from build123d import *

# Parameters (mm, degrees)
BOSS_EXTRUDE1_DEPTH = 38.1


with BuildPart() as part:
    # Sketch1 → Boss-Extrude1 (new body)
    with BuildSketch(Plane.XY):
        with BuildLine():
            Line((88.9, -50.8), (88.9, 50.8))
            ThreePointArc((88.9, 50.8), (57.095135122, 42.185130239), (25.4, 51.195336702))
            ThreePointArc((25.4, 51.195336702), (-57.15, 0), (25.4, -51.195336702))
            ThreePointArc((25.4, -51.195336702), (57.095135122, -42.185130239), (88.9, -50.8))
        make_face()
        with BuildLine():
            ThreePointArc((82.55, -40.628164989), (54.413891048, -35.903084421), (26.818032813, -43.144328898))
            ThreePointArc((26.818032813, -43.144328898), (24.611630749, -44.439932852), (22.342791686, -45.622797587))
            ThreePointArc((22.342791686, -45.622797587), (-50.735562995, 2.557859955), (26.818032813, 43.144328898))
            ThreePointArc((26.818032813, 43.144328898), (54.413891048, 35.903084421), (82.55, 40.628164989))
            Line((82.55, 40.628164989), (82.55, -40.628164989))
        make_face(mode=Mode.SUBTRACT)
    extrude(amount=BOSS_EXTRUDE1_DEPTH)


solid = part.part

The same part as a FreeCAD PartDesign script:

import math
import FreeCAD as App
import Part
import Sketcher

V = App.Vector
Q = App.Units.Quantity

doc = App.newDocument("Part")
params = doc.addObject("Spreadsheet::Sheet", "Params")
for row, (alias, value) in enumerate([
    ("sketch1_radius", "2 in"),
    ("sketch1_height", "4 in"),
    ("sketch1_radius2", "2.25 in"),
    ("pad1_length", "1.5 in"),
], start=1):
    params.set(f"A{row}", alias)
    params.set(f"B{row}", "=" + value)
    params.setAlias(f"B{row}", alias)

body = doc.addObject("PartDesign::Body", "Body")

# Sketch on XY plane
sketch1 = body.newObject("Sketcher::SketchObject", "Sketch")
sketch1.AttachmentSupport = (doc.getObject("XY_Plane"), [""])
sketch1.MapMode = "FlatFace"
sketch1.addGeometry([
    Part.LineSegment(V(89, -51, 0), V(89, 51, 0)),  # 0
    Part.ArcOfCircle(Part.Circle(V(57, 104, 0), V(0, 0, 1), 62), math.radians(-121), math.radians(-59)),  # 1
    Part.ArcOfCircle(Part.Circle(V(0, 0, 0), V(0, 0, 1), 57), math.radians(64), math.radians(296)),  # 2
    Part.ArcOfCircle(Part.Circle(V(57, -104, 0), V(0, 0, 1), 62), math.radians(59), math.radians(121)),  # 3
    Part.LineSegment(V(83, 41, 0), V(83, -41, 0)),  # 4
    Part.ArcOfCircle(Part.Circle(V(57, -104, 0), V(0, 0, 1), 68), math.radians(68), math.radians(117)),  # 5
    Part.ArcOfCircle(Part.Circle(V(0, 0, 0), V(0, 0, 1), 51), math.radians(-63.91), math.radians(-58.14)),  # 6
    Part.ArcOfCircle(Part.Circle(V(0, 0, 0), V(0, 0, 1), 51), math.radians(58), math.radians(296)),  # 7
    Part.ArcOfCircle(Part.Circle(V(57, 104, 0), V(0, 0, 1), 68), math.radians(-117), math.radians(-68)),  # 8
], False)
sketch1.addConstraint([
    Sketcher.Constraint("Coincident", 0, 2, 1, 2),
    Sketcher.Constraint("Coincident", 1, 1, 2, 1),
    Sketcher.Constraint("Coincident", 2, 2, 3, 2),
    Sketcher.Constraint("Coincident", 3, 1, 0, 1),
    Sketcher.Constraint("Coincident", 4, 2, 5, 1),
    Sketcher.Constraint("Coincident", 5, 2, 6, 2),
    Sketcher.Constraint("Tangent", 6, 1, 7, 2),
    Sketcher.Constraint("Coincident", 7, 1, 8, 1),
    Sketcher.Constraint("Coincident", 8, 2, 4, 1),
    Sketcher.Constraint("Vertical", 0),
    Sketcher.Constraint("Vertical", 4),
    Sketcher.Constraint("Coincident", 2, 3, -1, 1),
    Sketcher.Constraint("Coincident", 6, 3, -1, 1),
    Sketcher.Constraint("Coincident", 5, 3, 3, 3),
    Sketcher.Constraint("Coincident", 8, 3, 1, 3),
    Sketcher.Constraint("Equal", 1, 3),
    Sketcher.Constraint("Equal", 6, 7),
    Sketcher.Constraint("Equal", 5, 8),
    Sketcher.Constraint("Symmetric", 1, 3, 3, 3, -1),
    Sketcher.Constraint("Radius", 6, Q("2 in")),
    Sketcher.Constraint("DistanceY", 0, 1, 0, 2, Q("4 in")),
    Sketcher.Constraint("Radius", 2, Q("2.25 in")),
    Sketcher.Constraint("DistanceX", -1, 1, 1, 1, Q("1 in")),
    Sketcher.Constraint("DistanceX", -1, 1, 0, 2, Q("3.5 in")),
    Sketcher.Constraint("DistanceX", -1, 1, 4, 2, Q("3.25 in")),
    Sketcher.Constraint("Radius", 1, 61.602251),
    Sketcher.Constraint("Radius", 5, 67.952251),
    Sketcher.Constraint("DistanceX", -1, 1, 6, 1, 22.342792),
])
sketch1.setExpression("Constraints[19]", "Params.sketch1_radius")
sketch1.setExpression("Constraints[20]", "Params.sketch1_height")
sketch1.setExpression("Constraints[21]", "Params.sketch1_radius2")
pad1 = body.newObject("PartDesign::Pad", "Pad")
pad1.Profile = sketch1
pad1.setExpression("Length", "Params.pad1_length")

doc.recompute()
